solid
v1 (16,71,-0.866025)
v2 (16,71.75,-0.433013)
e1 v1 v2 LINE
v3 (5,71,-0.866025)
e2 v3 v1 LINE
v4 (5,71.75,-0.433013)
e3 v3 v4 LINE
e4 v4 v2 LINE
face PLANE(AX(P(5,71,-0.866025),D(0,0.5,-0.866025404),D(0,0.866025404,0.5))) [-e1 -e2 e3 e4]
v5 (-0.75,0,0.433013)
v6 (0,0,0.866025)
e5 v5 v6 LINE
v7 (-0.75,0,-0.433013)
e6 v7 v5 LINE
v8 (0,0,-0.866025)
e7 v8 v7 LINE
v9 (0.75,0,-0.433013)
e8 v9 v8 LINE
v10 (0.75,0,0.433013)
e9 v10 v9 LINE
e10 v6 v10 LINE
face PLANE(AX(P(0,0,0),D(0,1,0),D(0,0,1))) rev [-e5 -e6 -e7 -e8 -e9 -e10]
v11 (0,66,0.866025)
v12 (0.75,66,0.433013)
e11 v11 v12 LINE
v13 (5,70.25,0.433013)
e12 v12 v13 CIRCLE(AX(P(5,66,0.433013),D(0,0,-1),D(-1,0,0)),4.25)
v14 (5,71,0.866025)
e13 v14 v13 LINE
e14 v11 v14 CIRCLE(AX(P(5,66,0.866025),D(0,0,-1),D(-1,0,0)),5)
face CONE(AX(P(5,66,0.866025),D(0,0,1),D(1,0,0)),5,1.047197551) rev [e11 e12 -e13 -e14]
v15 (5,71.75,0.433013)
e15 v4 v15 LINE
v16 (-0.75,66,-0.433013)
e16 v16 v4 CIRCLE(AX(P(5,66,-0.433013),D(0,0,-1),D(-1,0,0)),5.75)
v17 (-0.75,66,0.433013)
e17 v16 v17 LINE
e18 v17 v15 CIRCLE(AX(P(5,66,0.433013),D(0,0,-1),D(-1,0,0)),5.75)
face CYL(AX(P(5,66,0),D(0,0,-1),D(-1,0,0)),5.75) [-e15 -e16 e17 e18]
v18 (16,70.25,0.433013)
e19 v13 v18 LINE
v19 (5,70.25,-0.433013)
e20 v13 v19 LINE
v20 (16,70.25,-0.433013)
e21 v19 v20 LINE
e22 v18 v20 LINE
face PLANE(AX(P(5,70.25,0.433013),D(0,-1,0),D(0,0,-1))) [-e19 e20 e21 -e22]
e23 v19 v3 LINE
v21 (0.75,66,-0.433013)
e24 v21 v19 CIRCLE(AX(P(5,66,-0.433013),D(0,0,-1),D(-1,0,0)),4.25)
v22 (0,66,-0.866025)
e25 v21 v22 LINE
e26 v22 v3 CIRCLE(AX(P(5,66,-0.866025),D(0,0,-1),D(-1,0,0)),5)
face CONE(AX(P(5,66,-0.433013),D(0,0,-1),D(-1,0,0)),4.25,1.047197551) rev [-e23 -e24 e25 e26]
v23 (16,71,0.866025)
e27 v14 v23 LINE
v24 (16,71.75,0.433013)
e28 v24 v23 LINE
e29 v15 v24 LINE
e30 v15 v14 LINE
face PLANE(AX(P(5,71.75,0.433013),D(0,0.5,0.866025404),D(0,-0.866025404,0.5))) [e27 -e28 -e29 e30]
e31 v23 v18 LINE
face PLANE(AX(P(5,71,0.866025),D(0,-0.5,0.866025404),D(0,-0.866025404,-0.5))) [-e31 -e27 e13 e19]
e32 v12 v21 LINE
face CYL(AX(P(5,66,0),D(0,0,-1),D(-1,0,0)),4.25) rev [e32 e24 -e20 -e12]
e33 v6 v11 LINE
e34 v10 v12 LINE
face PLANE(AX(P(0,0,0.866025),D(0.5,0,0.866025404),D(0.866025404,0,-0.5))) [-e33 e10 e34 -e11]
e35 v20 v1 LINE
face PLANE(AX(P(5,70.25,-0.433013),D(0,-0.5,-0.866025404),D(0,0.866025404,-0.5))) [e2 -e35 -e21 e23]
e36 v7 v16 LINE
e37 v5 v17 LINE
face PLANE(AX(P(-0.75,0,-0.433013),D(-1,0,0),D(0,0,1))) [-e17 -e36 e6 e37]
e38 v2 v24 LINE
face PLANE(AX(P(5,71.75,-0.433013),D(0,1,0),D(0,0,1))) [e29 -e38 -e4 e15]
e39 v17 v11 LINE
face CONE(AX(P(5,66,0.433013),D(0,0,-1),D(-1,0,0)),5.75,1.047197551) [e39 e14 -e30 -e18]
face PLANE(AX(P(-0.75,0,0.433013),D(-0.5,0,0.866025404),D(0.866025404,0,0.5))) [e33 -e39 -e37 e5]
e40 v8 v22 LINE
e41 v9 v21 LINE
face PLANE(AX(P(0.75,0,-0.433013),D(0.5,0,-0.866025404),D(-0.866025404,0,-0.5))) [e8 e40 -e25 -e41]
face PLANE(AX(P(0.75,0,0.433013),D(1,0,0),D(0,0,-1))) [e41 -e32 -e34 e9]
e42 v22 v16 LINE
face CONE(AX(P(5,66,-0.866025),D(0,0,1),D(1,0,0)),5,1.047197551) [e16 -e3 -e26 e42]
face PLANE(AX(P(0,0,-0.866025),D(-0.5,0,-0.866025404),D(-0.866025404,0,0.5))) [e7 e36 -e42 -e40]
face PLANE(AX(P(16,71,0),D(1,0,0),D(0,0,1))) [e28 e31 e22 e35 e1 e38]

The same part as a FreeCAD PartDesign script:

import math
import FreeCAD as App
import Part
import Sketcher
from FreeCAD import Vector
Q = App.Units.Quantity

doc = App.newDocument("Part")
body = doc.addObject("PartDesign::Body", "Body")

sketch1 = body.newObject("Sketcher::SketchObject", "Sketch")
sketch1.AttachmentSupport = (doc.getObject("XZ_Plane"), [""])
sketch1.MapMode = "FlatFace"
sketch1.addGeometry(Part.LineSegment(Vector(0.8, 0.4, 0), Vector(0.8, -0.4, 0)), False)
sketch1.addGeometry(Part.LineSegment(Vector(0.8, -0.4, 0), Vector(0, -0.9, 0)), False)
sketch1.addGeometry(Part.LineSegment(Vector(0, -0.9, 0), Vector(-0.8, -0.4, 0)), False)
sketch1.addGeometry(Part.LineSegment(Vector(-0.8, -0.4, 0), Vector(-0.8, 0.4, 0)), False)
sketch1.addGeometry(Part.LineSegment(Vector(-0.8, 0.4, 0), Vector(0, 0.9, 0)), False)
sketch1.addGeometry(Part.LineSegment(Vector(0, 0.9, 0), Vector(0.8, 0.4, 0)), False)
sketch1.addConstraint(Sketcher.Constraint("Coincident", 0, 2, 1, 1))
sketch1.addConstraint(Sketcher.Constraint("Coincident", 1, 2, 2, 1))
sketch1.addConstraint(Sketcher.Constraint("Coincident", 2, 2, 3, 1))
sketch1.addConstraint(Sketcher.Constraint("Coincident", 3, 2, 4, 1))
sketch1.addConstraint(Sketcher.Constraint("Coincident", 4, 2, 5, 1))
sketch1.addConstraint(Sketcher.Constraint("Coincident", 5, 2, 0, 1))
sketch1.addConstraint(Sketcher.Constraint("Vertical", 0))
sketch1.addConstraint(Sketcher.Constraint("Vertical", 3))
sketch1.addConstraint(Sketcher.Constraint("Symmetric", 0, 2, 3, 2, -1, 1))
sketch1.addConstraint(Sketcher.Constraint("Symmetric", 1, 2, 4, 2, -1, 1))
sketch1.addConstraint(Sketcher.Constraint("PointOnObject", 1, 2, -2))
sketch1.addConstraint(Sketcher.Constraint("Parallel", 2, 5))
sketch1.addConstraint(Sketcher.Constraint("Horizontal", 0, 2, 2, 2))
sketch1.addConstraint(Sketcher.Constraint("Angle", 1, Q("-150 deg")))
sketch1.addConstraint(Sketcher.Constraint("DistanceX", 2, 2, 0, 2, 1.5))
sketch1.addConstraint(Sketcher.Constraint("DistanceY", 0, 2, 0, 1, 0.866025))

sketch2 = body.newObject("Sketcher::SketchObject", "Sketch001")
sketch2.AttachmentSupport = (doc.getObject("XY_Plane"), [""])
sketch2.MapMode = "FlatFace"
sketch2.addGeometry(Part.LineSegment(Vector(0, 0, 0), Vector(0, 66, 0)), False)
sketch2.addGeometry(Part.ArcOfCircle(Part.Circle(Vector(5, 66, 0), Vector(0, 0, 1), 5), math.radians(90), math.radians(180)), False)
sketch2.addGeometry(Part.LineSegment(Vector(5, 71, 0), Vector(16, 71, 0)), False)
sketch2.addConstraint(Sketcher.Constraint("Tangent", 0, 2, 1, 2))
sketch2.addConstraint(Sketcher.Constraint("Tangent", 1, 1, 2, 1))
sketch2.addConstraint(Sketcher.Constraint("Vertical", 0))
sketch2.addConstraint(Sketcher.Constraint("Horizontal", 2))
sketch2.addConstraint(Sketcher.Constraint("Coincident", 0, 1, -1, 1))
sketch2.addConstraint(Sketcher.Constraint("Radius", 1, 5.0))
sketch2.addConstraint(Sketcher.Constraint("DistanceX", 2, 1, 2, 2, 11.0))
sketch2.addConstraint(Sketcher.Constraint("DistanceY", 0, 1, 0, 2, 66.0))
doc.recompute()

additivepipe = body.newObject("PartDesign::AdditivePipe", "AdditivePipe")
additivepipe.Profile = sketch1
additivepipe.Spine = (sketch2, ["Edge1", "Edge2", "Edge3"])

doc.recompute()
